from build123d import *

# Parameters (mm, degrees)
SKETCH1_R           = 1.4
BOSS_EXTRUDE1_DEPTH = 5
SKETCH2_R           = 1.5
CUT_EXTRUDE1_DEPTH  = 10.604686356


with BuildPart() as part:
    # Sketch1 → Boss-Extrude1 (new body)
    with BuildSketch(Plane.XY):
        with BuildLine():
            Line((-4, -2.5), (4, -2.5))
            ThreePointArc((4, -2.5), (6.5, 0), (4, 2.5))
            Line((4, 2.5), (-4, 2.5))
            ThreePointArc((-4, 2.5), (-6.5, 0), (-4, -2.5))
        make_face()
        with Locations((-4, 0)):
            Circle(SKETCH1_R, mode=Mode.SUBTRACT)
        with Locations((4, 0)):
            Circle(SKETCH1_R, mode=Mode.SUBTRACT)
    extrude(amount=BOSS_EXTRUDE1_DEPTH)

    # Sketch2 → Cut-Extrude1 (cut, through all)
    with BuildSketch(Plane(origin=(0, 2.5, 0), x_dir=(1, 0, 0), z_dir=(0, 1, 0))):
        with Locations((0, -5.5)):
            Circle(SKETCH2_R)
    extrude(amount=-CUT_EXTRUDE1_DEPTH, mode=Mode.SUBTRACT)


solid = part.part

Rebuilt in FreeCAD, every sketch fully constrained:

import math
import FreeCAD as App
import Part
import Sketcher
Q = App.Units.Quantity

doc = App.newDocument("Part")
body = doc.addObject("PartDesign::Body", "Body")

# Sketch on XY plane
sketch1 = body.newObject("Sketcher::SketchObject", "Sketch")
sketch1.AttachmentSupport = (doc.getObject("XY_Plane"), [""])
sketch1.MapMode = "FlatFace"
sketch1.addGeometry([
    Part.LineSegment(App.Vector(-4, -2.5, 0), App.Vector(4, -2.5, 0)),  # 0
    Part.ArcOfCircle(Part.Circle(App.Vector(4, 0, 0), App.Vector(0, 0, 1), 2.5), math.radians(-90), math.radians(90)),  # 1
    Part.LineSegment(App.Vector(4, 2.5, 0), App.Vector(-4, 2.5, 0)),  # 2
    Part.ArcOfCircle(Part.Circle(App.Vector(-4, 0, 0), App.Vector(0, 0, 1), 2.5), math.radians(90), math.radians(270)),  # 3
    Part.Circle(App.Vector(-4, 0, 0), App.Vector(0, 0, 1), 1.4),  # 4
    Part.Circle(App.Vector(4, 0, 0), App.Vector(0, 0, 1), 1.4),  # 5
], False)
sketch1.addConstraint([
    Sketcher.Constraint("Tangent", 0, 2, 1, 1),
    Sketcher.Constraint("Tangent", 1, 2, 2, 1),
    Sketcher.Constraint("Tangent", 2, 2, 3, 1),
    Sketcher.Constraint("Tangent", 3, 2, 0, 1),
    Sketcher.Constraint("Horizontal", 0),
    Sketcher.Constraint("Horizontal", 2),
    Sketcher.Constraint("Coincident", 4, 3, 3, 3),
    Sketcher.Constraint("Coincident", 5, 3, 1, 3),
    Sketcher.Constraint("Equal", 4, 5),
    Sketcher.Constraint("Symmetric", 1, 3, 3, 3, -1, 1),
    Sketcher.Constraint("Diameter", 4, Q("2.8 mm")),
    Sketcher.Constraint("Radius", 1, Q("2.5 mm")),
    Sketcher.Constraint("DistanceX", 0, 1, 0, 2, Q("8 mm")),
])
pad1 = body.newObject("PartDesign::Pad", "Pad")
pad1.Profile = sketch1
pad1.Length = 5

# Sketch on XZ plane
sketch2 = body.newObject("Sketcher::SketchObject", "Sketch001")
sketch2.AttachmentSupport = (doc.getObject("XZ_Plane"), [""])
sketch2.MapMode = "FlatFace"
sketch2.AttachmentOffset = App.Placement(App.Vector(0, 0, -2.5), App.Rotation())
sketch2.addGeometry(Part.Circle(App.Vector(0, 5.5, 0), App.Vector(0, 0, 1), 1.5), False)
sketch2.addConstraint([
    Sketcher.Constraint("PointOnObject", 0, 3, -2),
    Sketcher.Constraint("Diameter", 0, Q("3 mm")),
    Sketcher.Constraint("DistanceY", -1, 1, 0, 3, Q("5.5 mm")),
])
pocket1 = body.newObject("PartDesign::Pocket", "Pocket")
pocket1.Profile = sketch2
pocket1.Type = "ThroughAll"
pocket1.Reversed = True

doc.recompute()
